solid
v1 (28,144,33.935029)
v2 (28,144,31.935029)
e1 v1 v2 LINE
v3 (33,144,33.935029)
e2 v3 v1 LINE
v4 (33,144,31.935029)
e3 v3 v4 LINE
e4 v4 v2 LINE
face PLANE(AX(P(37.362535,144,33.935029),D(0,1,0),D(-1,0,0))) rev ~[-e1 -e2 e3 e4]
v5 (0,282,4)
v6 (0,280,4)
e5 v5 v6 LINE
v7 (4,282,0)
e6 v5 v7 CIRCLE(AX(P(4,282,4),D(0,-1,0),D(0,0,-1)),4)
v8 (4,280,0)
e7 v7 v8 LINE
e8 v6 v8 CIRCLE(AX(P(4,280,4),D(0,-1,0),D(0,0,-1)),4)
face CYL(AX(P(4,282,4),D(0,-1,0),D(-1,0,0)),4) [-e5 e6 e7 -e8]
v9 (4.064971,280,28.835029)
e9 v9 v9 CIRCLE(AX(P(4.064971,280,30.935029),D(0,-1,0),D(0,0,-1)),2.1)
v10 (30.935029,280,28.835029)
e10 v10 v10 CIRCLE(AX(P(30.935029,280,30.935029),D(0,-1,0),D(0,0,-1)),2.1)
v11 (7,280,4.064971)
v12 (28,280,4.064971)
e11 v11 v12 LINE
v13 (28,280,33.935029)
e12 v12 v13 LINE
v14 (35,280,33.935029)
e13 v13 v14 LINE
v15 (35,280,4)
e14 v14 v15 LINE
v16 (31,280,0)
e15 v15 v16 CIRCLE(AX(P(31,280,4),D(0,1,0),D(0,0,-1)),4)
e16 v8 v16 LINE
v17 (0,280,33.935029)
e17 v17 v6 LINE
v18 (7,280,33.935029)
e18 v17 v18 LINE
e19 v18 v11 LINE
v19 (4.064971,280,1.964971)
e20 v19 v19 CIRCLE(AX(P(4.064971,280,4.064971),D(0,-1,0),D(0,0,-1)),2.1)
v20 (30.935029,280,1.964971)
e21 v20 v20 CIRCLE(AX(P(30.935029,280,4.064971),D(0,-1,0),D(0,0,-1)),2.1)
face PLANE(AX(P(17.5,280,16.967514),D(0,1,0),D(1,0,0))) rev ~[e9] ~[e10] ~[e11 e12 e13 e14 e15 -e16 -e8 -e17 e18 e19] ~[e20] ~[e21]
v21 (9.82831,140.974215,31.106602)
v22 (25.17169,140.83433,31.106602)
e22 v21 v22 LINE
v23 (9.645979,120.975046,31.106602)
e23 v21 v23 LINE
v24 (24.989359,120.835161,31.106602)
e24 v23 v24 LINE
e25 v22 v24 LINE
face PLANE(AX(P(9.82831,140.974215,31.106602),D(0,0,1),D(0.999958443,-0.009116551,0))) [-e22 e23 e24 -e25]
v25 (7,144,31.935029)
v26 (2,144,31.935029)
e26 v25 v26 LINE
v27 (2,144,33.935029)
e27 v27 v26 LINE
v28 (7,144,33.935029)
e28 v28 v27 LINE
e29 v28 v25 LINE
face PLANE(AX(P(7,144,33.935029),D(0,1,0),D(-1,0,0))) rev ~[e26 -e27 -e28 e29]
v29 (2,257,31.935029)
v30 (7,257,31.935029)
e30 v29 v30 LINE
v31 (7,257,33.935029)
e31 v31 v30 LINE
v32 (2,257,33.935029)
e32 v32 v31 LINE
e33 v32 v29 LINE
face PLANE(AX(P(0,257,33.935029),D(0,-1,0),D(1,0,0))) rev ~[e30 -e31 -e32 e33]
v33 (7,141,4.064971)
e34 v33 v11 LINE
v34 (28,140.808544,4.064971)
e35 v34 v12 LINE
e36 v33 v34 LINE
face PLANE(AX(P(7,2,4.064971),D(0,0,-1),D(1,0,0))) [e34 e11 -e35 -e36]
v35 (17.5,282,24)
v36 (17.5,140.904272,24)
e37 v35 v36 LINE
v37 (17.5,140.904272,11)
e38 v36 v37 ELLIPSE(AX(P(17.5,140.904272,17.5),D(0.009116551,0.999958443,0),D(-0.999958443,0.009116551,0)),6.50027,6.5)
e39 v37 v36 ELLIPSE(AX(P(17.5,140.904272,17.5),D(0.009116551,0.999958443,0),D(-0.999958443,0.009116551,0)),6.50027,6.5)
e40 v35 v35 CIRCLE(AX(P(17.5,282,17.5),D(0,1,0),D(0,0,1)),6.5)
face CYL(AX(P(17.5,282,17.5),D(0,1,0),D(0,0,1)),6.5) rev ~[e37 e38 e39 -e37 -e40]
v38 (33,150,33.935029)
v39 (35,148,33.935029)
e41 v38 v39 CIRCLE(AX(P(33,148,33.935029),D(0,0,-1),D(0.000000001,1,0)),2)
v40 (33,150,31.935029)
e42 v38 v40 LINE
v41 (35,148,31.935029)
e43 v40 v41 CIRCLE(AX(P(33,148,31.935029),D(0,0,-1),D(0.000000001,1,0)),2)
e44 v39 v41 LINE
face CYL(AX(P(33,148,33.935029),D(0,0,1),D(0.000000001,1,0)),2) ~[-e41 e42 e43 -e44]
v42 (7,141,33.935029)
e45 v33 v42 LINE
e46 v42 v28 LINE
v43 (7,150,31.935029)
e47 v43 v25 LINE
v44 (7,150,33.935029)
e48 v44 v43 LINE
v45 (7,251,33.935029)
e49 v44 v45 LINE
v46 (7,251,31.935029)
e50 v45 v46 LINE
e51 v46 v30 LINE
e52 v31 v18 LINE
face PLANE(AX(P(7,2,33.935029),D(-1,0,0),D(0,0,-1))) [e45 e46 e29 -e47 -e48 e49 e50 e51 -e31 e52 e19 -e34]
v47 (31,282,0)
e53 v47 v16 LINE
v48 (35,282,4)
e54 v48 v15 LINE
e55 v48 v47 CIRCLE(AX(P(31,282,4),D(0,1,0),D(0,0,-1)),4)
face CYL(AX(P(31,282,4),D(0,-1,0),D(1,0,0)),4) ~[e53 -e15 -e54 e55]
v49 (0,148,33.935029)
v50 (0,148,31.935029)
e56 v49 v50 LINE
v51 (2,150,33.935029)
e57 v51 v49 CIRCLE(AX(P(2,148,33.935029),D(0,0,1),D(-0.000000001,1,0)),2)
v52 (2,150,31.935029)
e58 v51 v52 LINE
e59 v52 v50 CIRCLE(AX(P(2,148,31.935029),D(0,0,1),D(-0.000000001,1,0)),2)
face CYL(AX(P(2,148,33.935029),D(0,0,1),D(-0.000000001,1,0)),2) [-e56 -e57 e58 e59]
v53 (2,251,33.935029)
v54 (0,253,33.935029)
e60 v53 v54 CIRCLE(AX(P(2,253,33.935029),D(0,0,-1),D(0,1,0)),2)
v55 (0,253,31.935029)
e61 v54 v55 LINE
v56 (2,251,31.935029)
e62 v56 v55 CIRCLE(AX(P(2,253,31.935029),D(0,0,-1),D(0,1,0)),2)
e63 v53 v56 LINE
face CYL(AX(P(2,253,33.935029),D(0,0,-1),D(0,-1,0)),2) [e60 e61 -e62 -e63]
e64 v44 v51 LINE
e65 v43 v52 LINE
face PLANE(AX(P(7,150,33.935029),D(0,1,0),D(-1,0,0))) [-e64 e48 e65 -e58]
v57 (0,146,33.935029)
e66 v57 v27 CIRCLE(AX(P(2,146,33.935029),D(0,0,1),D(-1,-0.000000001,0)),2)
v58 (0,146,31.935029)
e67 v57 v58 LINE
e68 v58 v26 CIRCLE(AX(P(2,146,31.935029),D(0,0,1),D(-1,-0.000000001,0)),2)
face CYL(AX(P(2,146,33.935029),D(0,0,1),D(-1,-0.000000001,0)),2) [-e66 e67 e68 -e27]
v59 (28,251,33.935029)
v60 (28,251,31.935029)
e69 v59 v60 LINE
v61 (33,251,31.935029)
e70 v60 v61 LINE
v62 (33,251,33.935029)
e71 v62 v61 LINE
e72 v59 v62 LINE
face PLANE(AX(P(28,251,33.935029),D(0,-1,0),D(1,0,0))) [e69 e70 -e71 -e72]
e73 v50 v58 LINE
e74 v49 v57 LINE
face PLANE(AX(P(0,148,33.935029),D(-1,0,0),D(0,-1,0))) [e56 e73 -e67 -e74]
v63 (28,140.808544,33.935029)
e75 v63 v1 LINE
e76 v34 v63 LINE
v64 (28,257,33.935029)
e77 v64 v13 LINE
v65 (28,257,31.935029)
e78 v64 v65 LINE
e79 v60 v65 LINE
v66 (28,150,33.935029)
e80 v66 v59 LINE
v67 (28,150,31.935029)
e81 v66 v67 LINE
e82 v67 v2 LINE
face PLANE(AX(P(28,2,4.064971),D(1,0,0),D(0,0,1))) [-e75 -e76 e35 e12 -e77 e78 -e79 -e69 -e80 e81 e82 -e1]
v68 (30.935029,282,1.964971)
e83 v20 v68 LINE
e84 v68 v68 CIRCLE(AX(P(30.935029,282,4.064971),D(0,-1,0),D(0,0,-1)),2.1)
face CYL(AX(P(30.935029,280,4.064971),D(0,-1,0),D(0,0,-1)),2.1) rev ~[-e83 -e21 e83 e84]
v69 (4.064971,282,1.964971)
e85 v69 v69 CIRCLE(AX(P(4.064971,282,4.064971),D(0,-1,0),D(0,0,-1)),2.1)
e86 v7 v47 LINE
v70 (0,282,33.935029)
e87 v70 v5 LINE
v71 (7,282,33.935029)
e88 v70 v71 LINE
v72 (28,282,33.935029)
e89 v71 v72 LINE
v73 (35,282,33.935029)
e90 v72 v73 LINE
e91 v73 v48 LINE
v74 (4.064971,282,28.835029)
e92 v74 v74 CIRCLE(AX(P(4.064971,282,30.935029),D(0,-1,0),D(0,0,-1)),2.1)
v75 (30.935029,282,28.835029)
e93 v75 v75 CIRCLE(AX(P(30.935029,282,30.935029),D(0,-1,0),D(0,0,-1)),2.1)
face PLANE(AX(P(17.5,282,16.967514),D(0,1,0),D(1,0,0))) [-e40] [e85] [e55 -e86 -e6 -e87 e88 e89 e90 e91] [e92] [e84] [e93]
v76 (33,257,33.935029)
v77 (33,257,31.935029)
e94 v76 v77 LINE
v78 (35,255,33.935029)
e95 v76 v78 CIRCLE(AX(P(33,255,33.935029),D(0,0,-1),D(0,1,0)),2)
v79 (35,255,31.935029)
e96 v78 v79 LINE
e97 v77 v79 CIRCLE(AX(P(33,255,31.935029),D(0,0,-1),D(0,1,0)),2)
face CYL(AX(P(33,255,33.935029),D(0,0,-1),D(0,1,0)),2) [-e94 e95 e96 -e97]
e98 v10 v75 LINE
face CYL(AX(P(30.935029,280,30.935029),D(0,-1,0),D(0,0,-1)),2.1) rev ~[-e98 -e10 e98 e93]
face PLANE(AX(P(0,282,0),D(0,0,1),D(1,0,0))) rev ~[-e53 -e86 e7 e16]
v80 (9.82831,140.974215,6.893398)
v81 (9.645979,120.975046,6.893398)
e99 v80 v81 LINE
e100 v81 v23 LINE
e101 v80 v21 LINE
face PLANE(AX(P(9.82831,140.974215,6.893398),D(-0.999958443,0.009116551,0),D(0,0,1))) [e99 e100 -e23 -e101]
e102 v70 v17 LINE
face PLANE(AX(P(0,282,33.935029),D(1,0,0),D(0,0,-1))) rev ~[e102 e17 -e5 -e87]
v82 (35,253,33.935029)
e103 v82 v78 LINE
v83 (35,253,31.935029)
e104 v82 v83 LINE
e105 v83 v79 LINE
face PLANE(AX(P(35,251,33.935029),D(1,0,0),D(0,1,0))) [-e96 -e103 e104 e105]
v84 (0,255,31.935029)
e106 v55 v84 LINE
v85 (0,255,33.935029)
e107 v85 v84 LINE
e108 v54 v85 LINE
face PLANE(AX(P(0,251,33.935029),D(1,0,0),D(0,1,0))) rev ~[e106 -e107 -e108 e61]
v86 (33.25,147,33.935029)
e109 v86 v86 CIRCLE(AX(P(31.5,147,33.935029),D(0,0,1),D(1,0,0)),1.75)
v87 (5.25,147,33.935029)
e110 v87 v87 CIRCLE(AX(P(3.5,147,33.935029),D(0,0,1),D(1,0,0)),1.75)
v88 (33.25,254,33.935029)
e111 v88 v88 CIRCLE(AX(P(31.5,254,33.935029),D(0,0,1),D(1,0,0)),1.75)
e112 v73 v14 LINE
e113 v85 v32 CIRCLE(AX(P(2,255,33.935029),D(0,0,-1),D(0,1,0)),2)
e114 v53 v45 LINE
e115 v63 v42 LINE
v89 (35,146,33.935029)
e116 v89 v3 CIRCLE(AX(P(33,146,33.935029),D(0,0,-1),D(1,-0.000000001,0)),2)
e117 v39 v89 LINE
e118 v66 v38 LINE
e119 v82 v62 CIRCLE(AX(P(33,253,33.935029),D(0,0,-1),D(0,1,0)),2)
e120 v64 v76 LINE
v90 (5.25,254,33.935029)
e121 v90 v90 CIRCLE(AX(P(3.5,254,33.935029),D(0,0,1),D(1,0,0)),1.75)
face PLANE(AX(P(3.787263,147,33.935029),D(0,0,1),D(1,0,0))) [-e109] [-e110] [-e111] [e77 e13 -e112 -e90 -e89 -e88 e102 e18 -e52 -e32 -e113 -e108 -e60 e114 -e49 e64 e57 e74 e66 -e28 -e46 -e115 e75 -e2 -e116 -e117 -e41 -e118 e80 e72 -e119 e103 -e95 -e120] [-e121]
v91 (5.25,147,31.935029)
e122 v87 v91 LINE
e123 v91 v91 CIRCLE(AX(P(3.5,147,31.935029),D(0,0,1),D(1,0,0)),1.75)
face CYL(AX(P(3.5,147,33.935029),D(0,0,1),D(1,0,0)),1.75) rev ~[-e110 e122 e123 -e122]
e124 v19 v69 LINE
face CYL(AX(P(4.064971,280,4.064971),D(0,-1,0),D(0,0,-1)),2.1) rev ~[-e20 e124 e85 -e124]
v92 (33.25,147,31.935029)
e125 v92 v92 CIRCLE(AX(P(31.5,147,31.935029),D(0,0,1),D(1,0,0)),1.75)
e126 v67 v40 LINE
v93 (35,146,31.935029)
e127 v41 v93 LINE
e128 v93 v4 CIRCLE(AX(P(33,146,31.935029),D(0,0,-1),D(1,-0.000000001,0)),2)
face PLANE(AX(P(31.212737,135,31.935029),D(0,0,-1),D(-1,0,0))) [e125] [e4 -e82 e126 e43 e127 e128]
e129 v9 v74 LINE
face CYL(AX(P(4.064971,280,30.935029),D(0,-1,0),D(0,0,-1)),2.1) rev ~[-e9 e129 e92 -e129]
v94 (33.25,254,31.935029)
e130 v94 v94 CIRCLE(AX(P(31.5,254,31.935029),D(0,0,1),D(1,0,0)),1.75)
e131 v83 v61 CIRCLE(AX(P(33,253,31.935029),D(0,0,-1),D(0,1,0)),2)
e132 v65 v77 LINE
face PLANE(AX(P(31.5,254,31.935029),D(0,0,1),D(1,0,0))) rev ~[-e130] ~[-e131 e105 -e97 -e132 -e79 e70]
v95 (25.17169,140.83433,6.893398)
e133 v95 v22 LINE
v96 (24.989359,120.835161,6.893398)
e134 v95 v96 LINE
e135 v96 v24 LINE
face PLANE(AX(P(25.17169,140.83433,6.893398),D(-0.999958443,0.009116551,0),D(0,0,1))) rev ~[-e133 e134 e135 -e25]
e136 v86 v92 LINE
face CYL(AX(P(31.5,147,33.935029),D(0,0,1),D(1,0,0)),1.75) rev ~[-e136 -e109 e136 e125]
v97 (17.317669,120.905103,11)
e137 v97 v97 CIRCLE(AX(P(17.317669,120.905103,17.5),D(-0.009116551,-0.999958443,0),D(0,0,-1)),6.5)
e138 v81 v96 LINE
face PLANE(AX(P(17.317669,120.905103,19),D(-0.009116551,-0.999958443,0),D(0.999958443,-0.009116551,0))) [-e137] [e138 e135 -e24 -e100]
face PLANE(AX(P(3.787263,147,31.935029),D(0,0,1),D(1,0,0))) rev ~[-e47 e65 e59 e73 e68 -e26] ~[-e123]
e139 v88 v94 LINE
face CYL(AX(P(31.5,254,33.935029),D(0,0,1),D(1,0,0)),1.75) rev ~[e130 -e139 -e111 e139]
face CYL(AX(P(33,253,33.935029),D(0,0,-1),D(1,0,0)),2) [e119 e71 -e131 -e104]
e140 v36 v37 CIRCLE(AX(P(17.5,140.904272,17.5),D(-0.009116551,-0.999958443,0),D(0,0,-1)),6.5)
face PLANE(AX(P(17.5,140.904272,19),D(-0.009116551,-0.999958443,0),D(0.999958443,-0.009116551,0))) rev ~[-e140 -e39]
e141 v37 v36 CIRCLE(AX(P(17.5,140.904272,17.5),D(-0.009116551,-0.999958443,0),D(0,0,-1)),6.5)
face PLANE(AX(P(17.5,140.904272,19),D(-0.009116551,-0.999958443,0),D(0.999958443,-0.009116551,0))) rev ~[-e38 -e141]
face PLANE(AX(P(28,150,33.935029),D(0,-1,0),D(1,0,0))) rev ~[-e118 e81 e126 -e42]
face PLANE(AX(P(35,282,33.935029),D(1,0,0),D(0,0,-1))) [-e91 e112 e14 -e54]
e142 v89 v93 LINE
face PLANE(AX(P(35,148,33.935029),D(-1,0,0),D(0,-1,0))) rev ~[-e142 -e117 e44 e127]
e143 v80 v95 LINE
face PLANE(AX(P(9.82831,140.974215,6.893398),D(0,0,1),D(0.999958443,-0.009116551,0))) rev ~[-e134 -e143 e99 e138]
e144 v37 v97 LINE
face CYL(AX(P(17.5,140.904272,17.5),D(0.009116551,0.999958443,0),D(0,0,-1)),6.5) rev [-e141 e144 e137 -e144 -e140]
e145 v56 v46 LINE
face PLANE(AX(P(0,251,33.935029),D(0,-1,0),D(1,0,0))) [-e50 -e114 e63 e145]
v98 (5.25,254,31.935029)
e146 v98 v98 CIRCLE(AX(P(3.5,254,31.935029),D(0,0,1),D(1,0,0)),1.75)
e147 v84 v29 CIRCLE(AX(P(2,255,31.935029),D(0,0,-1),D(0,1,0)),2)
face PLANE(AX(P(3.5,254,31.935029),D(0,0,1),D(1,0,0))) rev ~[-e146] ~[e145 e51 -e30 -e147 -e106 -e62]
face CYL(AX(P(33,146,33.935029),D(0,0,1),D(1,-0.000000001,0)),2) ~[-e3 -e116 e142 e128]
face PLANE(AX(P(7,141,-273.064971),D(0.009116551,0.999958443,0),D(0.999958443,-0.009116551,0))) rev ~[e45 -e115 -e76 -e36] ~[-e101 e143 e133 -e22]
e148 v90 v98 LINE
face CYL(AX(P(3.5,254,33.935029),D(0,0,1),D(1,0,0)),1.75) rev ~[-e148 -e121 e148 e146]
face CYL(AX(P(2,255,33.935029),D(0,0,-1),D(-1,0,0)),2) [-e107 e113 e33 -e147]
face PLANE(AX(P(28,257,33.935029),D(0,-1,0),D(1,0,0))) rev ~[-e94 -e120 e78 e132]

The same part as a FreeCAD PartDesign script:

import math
import FreeCAD as App
import Part
import Sketcher

V = App.Vector
Q = App.Units.Quantity


def edges_at(feature, points):
    """Names of the edges that pass closest to the given points."""
    edges = feature.Shape.Edges
    near = lambda p: min(range(len(edges)), key=lambda i: edges[i].distToShape(Part.Vertex(*p))[0])
    return sorted({f"Edge{near(p) + 1}" for p in points})


def add_polygon(sketch, points):
    """Adds a closed chain of lines whose ends are joined by coincident constraints."""
    first, n = sketch.GeometryCount, len(points)
    for a, b in zip(points, points[1:] + points[:1]):
        sketch.addGeometry(Part.LineSegment(App.Vector(*a, 0), App.Vector(*b, 0)), False)
    for i in range(n):
        sketch.addConstraint(Sketcher.Constraint("Coincident", first + i, 2, first + (i + 1) % n, 1))

doc = App.newDocument("Part")
body = doc.addObject("PartDesign::Body", "Body")

# Sketch on XZ plane
sketch1 = doc.addObject("Sketcher::SketchObject", "Sketch")
body.addObject(sketch1)
sketch1.AttachmentSupport = (doc.XZ_Plane, [""])
sketch1.MapMode = "FlatFace"
add_polygon(sketch1, [(0, 0), (0, 35), (35, 35), (35, 0)])  # lines 0-3
sketch1.addConstraint([
    Sketcher.Constraint("Vertical", 0),
    Sketcher.Constraint("Horizontal", 1),
    Sketcher.Constraint("Vertical", 2),
    Sketcher.Constraint("Horizontal", 3),
    Sketcher.Constraint("Coincident", 3, 2, -1, 1),
    Sketcher.Constraint("Equal", 3, 0),
    Sketcher.Constraint("DistanceX", 1, 1, 1, 2, Q("35 mm")),
])
pad1 = doc.addObject("PartDesign::Pad", "Pad")
body.addObject(pad1)
pad1.Profile = sketch1
pad1.Length = 2
pad1.Reversed = True

# Sketch on XZ plane
sketch2 = doc.addObject("Sketcher::SketchObject", "Sketch001")
body.addObject(sketch2)
sketch2.AttachmentSupport = (doc.XZ_Plane, [""])
sketch2.MapMode = "FlatFace"
sketch2.AttachmentOffset = App.Placement(V(0, 0, -2), App.Rotation())
sketch2.addGeometry(Part.Circle(V(30.9, 4.1, 0), V(0, 0, 1), 1.8), False)  # 0
sketch2.addGeometry(Part.Circle(V(30.9, 30.9, 0), V(0, 0, 1), 1.8), False)  # 1
sketch2.addGeometry(Part.Circle(V(4.1, 4.1, 0), V(0, 0, 1), 1.8), False)  # 2
sketch2.addGeometry(Part.Circle(V(4.1, 30.9, 0), V(0, 0, 1), 1.8), False)  # 3
add_polygon(sketch2, [(0, 33.9), (0, 35), (35, 35), (35, 33.9)])  # lines 4-7
sketch2.addConstraint([
    Sketcher.Constraint("Vertical", 4),
    Sketcher.Constraint("Horizontal", 5),
    Sketcher.Constraint("Vertical", 6),
    Sketcher.Constraint("Horizontal", 7),
    Sketcher.Constraint("Equal", 0, 1),
    Sketcher.Constraint("Equal", 1, 2),
    Sketcher.Constraint("Equal", 2, 3),
    Sketcher.Constraint("PointOnObject", 4, 2, -2),
    Sketcher.Constraint("Horizontal", 0, 3, 2, 3),
    Sketcher.Constraint("Horizontal", 1, 3, 3, 3),
    Sketcher.Constraint("Vertical", 0, 3, 1, 3),
    Sketcher.Constraint("Vertical", 2, 3, 3, 3),
    Sketcher.Constraint("Diameter", 0, Q("3.5 mm")),
    Sketcher.Constraint("DistanceX", 5, 1, 5, 2, Q("35 mm")),
    Sketcher.Constraint("DistanceY", -1, 1, 4, 2, Q("35 mm")),
    Sketcher.Constraint("DistanceY", 1, 3, 6, 2, Q("3 mm")),
    Sketcher.Constraint("DistanceY", 4, 1, 4, 2, Q("1.064971 mm")),
    Sketcher.Constraint("DistanceX", -1, 1, 0, 3, Q("30.935029 mm")),
    Sketcher.Constraint("DistanceY", -1, 1, 0, 3, Q("4.064971 mm")),
    Sketcher.Constraint("DistanceX", -1, 1, 2, 3, Q("4.064971 mm")),
])
pocket1 = doc.addObject("PartDesign::Pocket", "Pocket")
body.addObject(pocket1)
pocket1.Profile = sketch2
pocket1.Length = 2
pocket1.Reversed = True

# Sketch on XZ plane
sketch3 = doc.addObject("Sketcher::SketchObject", "Sketch002")
body.addObject(sketch3)
sketch3.AttachmentSupport = (doc.XZ_Plane, [""])
sketch3.MapMode = "FlatFace"
sketch3.AttachmentOffset = App.Placement(V(0, 0, -2), App.Rotation())
add_polygon(sketch3, [(7, 34), (28, 34), (28, 4), (7, 4)])  # lines 0-3
sketch3.addConstraint([
    Sketcher.Constraint("Horizontal", 0),
    Sketcher.Constraint("Vertical", 1),
    Sketcher.Constraint("Horizontal", 2),
    Sketcher.Constraint("Vertical", 3),
    Sketcher.Constraint("DistanceX", 0, 1, 0, 2, Q("21 mm")),
    Sketcher.Constraint("DistanceX", -1, 1, 0, 2, Q("28 mm")),
    Sketcher.Constraint("DistanceY", 1, 2, 1, 1, Q("29.870058 mm")),
    Sketcher.Constraint("DistanceY", -1, 1, 0, 2, Q("33.935029 mm")),
])
pad2 = doc.addObject("PartDesign::Pad", "Pad001")
body.addObject(pad2)
pad2.Profile = sketch3
pad2.Length = 280
pad2.Reversed = True

# Sketch on XY plane
sketch4 = doc.addObject("Sketcher::SketchObject", "Sketch003")
body.addObject(sketch4)
sketch4.AttachmentSupport = (doc.XY_Plane, [""])
sketch4.MapMode = "FlatFace"
sketch4.AttachmentOffset = App.Placement(V(0, 0, 33.935029), App.Rotation())
add_polygon(sketch4, [(28, 257), (28, 251), (35, 251), (35, 257)])  # lines 0-3
sketch4.addGeometry(Part.Circle(V(31.5, 254, 0), V(0, 0, 1), 1.8), False)  # 4
add_polygon(sketch4, [(0, 257), (0, 251), (7, 251), (7, 257)])  # lines 5-8
sketch4.addGeometry(Part.Circle(V(3.5, 254, 0), V(0, 0, 1), 1.8), False)  # 9
add_polygon(sketch4, [(28, 31), (28, 25), (35, 25), (35, 31)])  # lines 10-13
sketch4.addGeometry(Part.Circle(V(31.5, 28, 0), V(0, 0, 1), 1.8), False)  # 14
add_polygon(sketch4, [(0, 31), (0, 25), (7, 25), (7, 31)])  # lines 15-18
sketch4.addGeometry(Part.Circle(V(3.5, 28, 0), V(0, 0, 1), 1.8), False)  # 19
sketch4.addConstraint([
    Sketcher.Constraint("Vertical", 0),
    Sketcher.Constraint("Horizontal", 1),
    Sketcher.Constraint("Vertical", 2),
    Sketcher.Constraint("Horizontal", 3),
    Sketcher.Constraint("Vertical", 5),
    Sketcher.Constraint("Horizontal", 6),
    Sketcher.Constraint("Vertical", 7),
    Sketcher.Constraint("Horizontal", 8),
    Sketcher.Constraint("Vertical", 10),
    Sketcher.Constraint("Horizontal", 11),
    Sketcher.Constraint("Vertical", 12),
    Sketcher.Constraint("Horizontal", 13),
    Sketcher.Constraint("Vertical", 15),
    Sketcher.Constraint("Horizontal", 16),
    Sketcher.Constraint("Vertical", 17),
    Sketcher.Constraint("Horizontal", 18),
    Sketcher.Constraint("Equal", 4, 9),
    Sketcher.Constraint("Equal", 9, 14),
    Sketcher.Constraint("Equal", 14, 19),
    Sketcher.Constraint("PointOnObject", 5, 2, -2),
    Sketcher.Constraint("PointOnObject", 15, 2, -2),
    Sketcher.Constraint("Horizontal", 4, 3, 9, 3),
    Sketcher.Constraint("Horizontal", 14, 3, 19, 3),
    Sketcher.Constraint("Horizontal", 1, 2, 5, 2),
    Sketcher.Constraint("Horizontal", 3, 2, 7, 2),
    Sketcher.Constraint("Horizontal", 11, 2, 15, 2),
    Sketcher.Constraint("Horizontal", 13, 2, 17, 2),
    Sketcher.Constraint("Vertical", 4, 3, 14, 3),
    Sketcher.Constraint("Vertical", 9, 3, 19, 3),
    Sketcher.Constraint("Vertical", 3, 2, 10, 2),
    Sketcher.Constraint("Vertical", 2, 2, 11, 2),
    Sketcher.Constraint("Vertical", 7, 2, 16, 2),
    Sketcher.Constraint("Equal", 3, 6),
    Sketcher.Constraint("Equal", 7, 10),
    Sketcher.Constraint("Diameter", 4, Q("3.5 mm")),
    Sketcher.Constraint("DistanceX", 1, 1, 1, 2, Q("7 mm")),
    Sketcher.Constraint("DistanceY", 0, 2, 0, 1, Q("6 mm")),
    Sketcher.Constraint("DistanceY", -1, 1, 4, 3, Q("254 mm")),
    Sketcher.Constraint("DistanceY", -1, 1, 14, 3, Q("28 mm")),
    Sketcher.Constraint("DistanceX", -1, 1, 0, 2, Q("28 mm")),
    Sketcher.Constraint("DistanceY", -1, 1, 0, 2, Q("251 mm")),
    Sketcher.Constraint("DistanceY", -1, 1, 10, 2, Q("25 mm")),
    Sketcher.Constraint("DistanceX", 9, 3, 4, 3, Q("28 mm")),
    Sketcher.Constraint("DistanceX", -1, 1, 4, 3, Q("31.5 mm")),
])
pad3 = doc.addObject("PartDesign::Pad", "Pad002")
body.addObject(pad3)
pad3.Profile = sketch4
pad3.Length = 2
pad3.Reversed = True

# Sketch on XY plane
sketch5 = doc.addObject("Sketcher::SketchObject", "Sketch004")
body.addObject(sketch5)
sketch5.AttachmentSupport = (doc.XY_Plane, [""])
sketch5.MapMode = "FlatFace"
sketch5.AttachmentOffset = App.Placement(V(0, 0, 33.935029), App.Rotation())
add_polygon(sketch5, [(7, 144), (0, 144), (0, 138), (7, 138)])  # lines 0-3
sketch5.addGeometry(Part.Circle(V(3.5, 141, 0), V(0, 0, 1), 1.8), False)  # 4
add_polygon(sketch5, [(35, 144), (28, 144), (28, 138), (35, 138)])  # lines 5-8
sketch5.addGeometry(Part.Circle(V(31.5, 141, 0), V(0, 0, 1), 1.8), False)  # 9
sketch5.addConstraint([
    Sketcher.Constraint("Horizontal", 0),
    Sketcher.Constraint("Vertical", 1),
    Sketcher.Constraint("Horizontal", 2),
    Sketcher.Constraint("Vertical", 3),
    Sketcher.Constraint("Horizontal", 5),
    Sketcher.Constraint("Vertical", 6),
    Sketcher.Constraint("Horizontal", 7),
    Sketcher.Constraint("Vertical", 8),
    Sketcher.Constraint("Equal", 4, 9),
    Sketcher.Constraint("PointOnObject", 0, 2, -2),
    Sketcher.Constraint("Horizontal", 4, 3, 9, 3),
    Sketcher.Constraint("Horizontal", 3, 2, 5, 2),
    Sketcher.Constraint("Horizontal", 2, 2, 6, 2),
    Sketcher.Constraint("Equal", 2, 5),
    Sketcher.Constraint("Diameter", 4, Q("3.5 mm")),
    Sketcher.Constraint("DistanceX", 0, 2, 0, 1, Q("7 mm")),
    Sketcher.Constraint("DistanceY", 1, 2, 1, 1, Q("6 mm")),
    Sketcher.Constraint("DistanceY", -1, 1, 4, 3, Q("141 mm")),
    Sketcher.Constraint("DistanceY", -1, 1, 0, 2, Q("144 mm")),
    Sketcher.Constraint("DistanceX", -1, 1, 5, 2, Q("28 mm")),
    Sketcher.Constraint("DistanceX", 4, 3, 9, 3, Q("28 mm")),
    Sketcher.Constraint("DistanceX", -1, 1, 4, 3, Q("3.5 mm")),
])
pad4 = doc.addObject("PartDesign::Pad", "Pad003")
body.addObject(pad4)
pad4.Profile = sketch5
pad4.Length = 2
pad4.Reversed = True

# Sketch on XZ plane
sketch6 = doc.addObject("Sketcher::SketchObject", "Sketch005")
body.addObject(sketch6)
sketch6.AttachmentSupport = (doc.XZ_Plane, [""])
sketch6.MapMode = "FlatFace"
sketch6.AttachmentOffset = App.Placement(V(0, 0, -282), App.Rotation())
add_polygon(sketch6, [(0, 0), (0, 33.9), (35, 33.9), (35, 0)])  # lines 0-3
sketch6.addGeometry(Part.Circle(V(4.1, 30.9, 0), V(0, 0, 1), 1.8), False)  # 4
sketch6.addGeometry(Part.Circle(V(30.9, 30.9, 0), V(0, 0, 1), 1.8), False)  # 5
sketch6.addGeometry(Part.Circle(V(4.1, 4.1, 0), V(0, 0, 1), 1.8), False)  # 6
sketch6.addGeometry(Part.Circle(V(30.9, 4.1, 0), V(0, 0, 1), 1.8), False)  # 7
sketch6.addConstraint([
    Sketcher.Constraint("Vertical", 0),
    Sketcher.Constraint("Horizontal", 1),
    Sketcher.Constraint("Vertical", 2),
    Sketcher.Constraint("Horizontal", 3),
    Sketcher.Constraint("Coincident", 3, 2, -1, 1),
    Sketcher.Constraint("Equal", 4, 5),
    Sketcher.Constraint("Equal", 5, 6),
    Sketcher.Constraint("Equal", 6, 7),
    Sketcher.Constraint("Horizontal", 4, 3, 5, 3),
    Sketcher.Constraint("Horizontal", 6, 3, 7, 3),
    Sketcher.Constraint("Vertical", 4, 3, 6, 3),
    Sketcher.Constraint("Vertical", 5, 3, 7, 3),
    Sketcher.Constraint("Diameter", 4, Q("3.5 mm")),
    Sketcher.Constraint("DistanceX", 1, 1, 1, 2, Q("35 mm")),
    Sketcher.Constraint("DistanceY", 4, 3, 0, 2, Q("3 mm")),
    Sketcher.Constraint("DistanceY", 0, 1, 0, 2, Q("33.935029 mm")),
    Sketcher.Constraint("DistanceX", -1, 1, 4, 3, Q("4.064971 mm")),
    Sketcher.Constraint("DistanceX", -1, 1, 5, 3, Q("30.935029 mm")),
    Sketcher.Constraint("DistanceY", -1, 1, 6, 3, Q("4.064971 mm")),
])
pad5 = doc.addObject("PartDesign::Pad", "Pad004")
body.addObject(pad5)
pad5.Profile = sketch6
pad5.Length = 2

# Sketch on XZ plane
sketch7 = doc.addObject("Sketcher::SketchObject", "Sketch006")
body.addObject(sketch7)
sketch7.AttachmentSupport = (doc.XZ_Plane, [""])
sketch7.MapMode = "FlatFace"
sketch7.AttachmentOffset = App.Placement(V(0, 0, -282), App.Rotation())
sketch7.addGeometry([
    Part.Circle(V(17.5, 17.5, 0), V(0, 0, 1), 6.5),
    Part.Circle(V(30.9, 4.1, 0), V(0, 0, 1), 1.8),
], False)
sketch7.addConstraint([
    Sketcher.Constraint("Diameter", 0, Q("13 mm")),
    Sketcher.Constraint("Diameter", 1, Q("3.5 mm")),
    Sketcher.Constraint("DistanceX", -1, 1, 0, 3, Q("17.5 mm")),
    Sketcher.Constraint("DistanceY", -1, 1, 0, 3, Q("17.5 mm")),
    Sketcher.Constraint("DistanceX", -1, 1, 1, 3, Q("30.935029 mm")),
    Sketcher.Constraint("DistanceY", -1, 1, 1, 3, Q("4.064971 mm")),
])
pocket2 = doc.addObject("PartDesign::Pocket", "Pocket001")
body.addObject(pocket2)
pocket2.Profile = sketch7
pocket2.Length = 373
pocket2.Reversed = True
doc.recompute()

fillet = doc.addObject("PartDesign::Fillet", "Fillet")
body.addObject(fillet)
fillet.Base = (pocket2, edges_at(pocket2, [
    (0, 31, 32.935),
    (0, 25, 32.935),
    (0, 144, 32.935),
    (0, 138, 32.935),
    (35, 144, 32.935),
    (35, 138, 32.935),
    (35, 257, 32.935),
    (35, 251, 32.935),
    (0, 251, 32.935),
    (0, 257, 32.935),
    (35, 31, 32.935),
    (35, 25, 32.935),
]))
fillet.Radius = 2
doc.recompute()

fillet2 = doc.addObject("PartDesign::Fillet", "Fillet001")
body.addObject(fillet2)
fillet2.Base = (fillet, edges_at(fillet, [
    (35, 281, 0),
    (0, 281, 0),
    (0, 1, 0),
    (35, 1, 0),
]))
fillet2.Radius = 4

# Sketch on XY plane
sketch8 = doc.addObject("Sketcher::SketchObject", "Sketch007")
body.addObject(sketch8)
sketch8.AttachmentSupport = (doc.XY_Plane, [""])
sketch8.MapMode = "FlatFace"
sketch8.AttachmentOffset = App.Placement(V(0, 0, 33.935029), App.Rotation())
sketch8.addGeometry([
    Part.LineSegment(V(0, 148, 0), V(0, 146, 0)),  # 0
    Part.ArcOfCircle(Part.Circle(V(2, 146, 0), V(0, 0, 1), 2), math.radians(-180), math.radians(-90)),  # 1
    Part.LineSegment(V(2, 144, 0), V(7, 144, 0)),  # 2
    Part.LineSegment(V(7, 144, 0), V(7, 150, 0)),  # 3
    Part.LineSegment(V(7, 150, 0), V(2, 150, 0)),  # 4
    Part.ArcOfCircle(Part.Circle(V(2, 148, 0), V(0, 0, 1), 2), math.radians(90), math.radians(180)),  # 5
    Part.Circle(V(3.5, 147, 0), V(0, 0, 1), 1.8),  # 6
    Part.LineSegment(V(0, 136, 0), V(0, 134, 0)),  # 7
    Part.ArcOfCircle(Part.Circle(V(2, 134, 0), V(0, 0, 1), 2), math.radians(-180), math.radians(-90)),  # 8
    Part.LineSegment(V(2, 132, 0), V(7, 132, 0)),  # 9
    Part.LineSegment(V(7, 132, 0), V(7, 138, 0)),  # 10
    Part.LineSegment(V(7, 138, 0), V(2, 138, 0)),  # 11
    Part.ArcOfCircle(Part.Circle(V(2, 136, 0), V(0, 0, 1), 2), math.radians(90), math.radians(180)),  # 12
    Part.Circle(V(3.5, 135, 0), V(0, 0, 1), 1.8),  # 13
    Part.ArcOfCircle(Part.Circle(V(33, 134, 0), V(0, 0, 1), 2), math.radians(-90), math.radians(0)),  # 14
    Part.LineSegment(V(35, 134, 0), V(35, 136, 0)),  # 15
    Part.ArcOfCircle(Part.Circle(V(33, 136, 0), V(0, 0, 1), 2), math.radians(0), math.radians(90)),  # 16
    Part.LineSegment(V(33, 138, 0), V(28, 138, 0)),  # 17
    Part.LineSegment(V(28, 138, 0), V(28, 132, 0)),  # 18
    Part.LineSegment(V(28, 132, 0), V(33, 132, 0)),  # 19
    Part.Circle(V(31.5, 135, 0), V(0, 0, 1), 1.8),  # 20
    Part.ArcOfCircle(Part.Circle(V(33, 146, 0), V(0, 0, 1), 2), math.radians(-90), math.radians(0)),  # 21
    Part.LineSegment(V(35, 146, 0), V(35, 148, 0)),  # 22
    Part.ArcOfCircle(Part.Circle(V(33, 148, 0), V(0, 0, 1), 2), math.radians(0), math.radians(90)),  # 23
    Part.LineSegment(V(33, 150, 0), V(28, 150, 0)),  # 24
    Part.LineSegment(V(28, 150, 0), V(28, 144, 0)),  # 25
    Part.LineSegment(V(28, 144, 0), V(33, 144, 0)),  # 26
    Part.Circle(V(31.5, 147, 0), V(0, 0, 1), 1.8),  # 27
], False)
sketch8.addConstraint([
    Sketcher.Constraint("Tangent", 0, 2, 1, 1),
    Sketcher.Constraint("Tangent", 1, 2, 2, 1),
    Sketcher.Constraint("Coincident", 2, 2, 3, 1),
    Sketcher.Constraint("Coincident", 3, 2, 4, 1),
    Sketcher.Constraint("Tangent", 4, 2, 5, 1),
    Sketcher.Constraint("Tangent", 5, 2, 0, 1),
    Sketcher.Constraint("Tangent", 7, 2, 8, 1),
    Sketcher.Constraint("Tangent", 8, 2, 9, 1),
    Sketcher.Constraint("Coincident", 9, 2, 10, 1),
    Sketcher.Constraint("Coincident", 10, 2, 11, 1),
    Sketcher.Constraint("Tangent", 11, 2, 12, 1),
    Sketcher.Constraint("Tangent", 12, 2, 7, 1),
    Sketcher.Constraint("Tangent", 14, 2, 15, 1),
    Sketcher.Constraint("Tangent", 15, 2, 16, 1),
    Sketcher.Constraint("Tangent", 16, 2, 17, 1),
    Sketcher.Constraint("Coincident", 17, 2, 18, 1),
    Sketcher.Constraint("Coincident", 18, 2, 19, 1),
    Sketcher.Constraint("Tangent", 19, 2, 14, 1),
    Sketcher.Constraint("Tangent", 21, 2, 22, 1),
    Sketcher.Constraint("Tangent", 22, 2, 23, 1),
    Sketcher.Constraint("Tangent", 23, 2, 24, 1),
    Sketcher.Constraint("Coincident", 24, 2, 25, 1),
    Sketcher.Constraint("Coincident", 25, 2, 26, 1),
    Sketcher.Constraint("Tangent", 26, 2, 21, 1),
    Sketcher.Constraint("Vertical", 0),
    Sketcher.Constraint("Horizontal", 2),
    Sketcher.Constraint("Vertical", 3),
    Sketcher.Constraint("Horizontal", 4),
    Sketcher.Constraint("Vertical", 7),
    Sketcher.Constraint("Horizontal", 9),
    Sketcher.Constraint("Vertical", 10),
    Sketcher.Constraint("Horizontal", 11),
    Sketcher.Constraint("Vertical", 15),
    Sketcher.Constraint("Horizontal", 17),
    Sketcher.Constraint("Vertical", 18),
    Sketcher.Constraint("Horizontal", 19),
    Sketcher.Constraint("Vertical", 22),
    Sketcher.Constraint("Horizontal", 24),
    Sketcher.Constraint("Vertical", 25),
    Sketcher.Constraint("Horizontal", 26),
    Sketcher.Constraint("Equal", 1, 5),
    Sketcher.Constraint("Equal", 5, 8),
    Sketcher.Constraint("Equal", 8, 12),
    Sketcher.Constraint("Equal", 6, 13),
    Sketcher.Constraint("Equal", 12, 14),
    Sketcher.Constraint("Equal", 14, 16),
    Sketcher.Constraint("Equal", 13, 20),
    Sketcher.Constraint("Equal", 16, 21),
    Sketcher.Constraint("Equal", 21, 23),
    Sketcher.Constraint("Equal", 20, 27),
    Sketcher.Constraint("PointOnObject", 0, 2, -2),
    Sketcher.Constraint("PointOnObject", 7, 2, -2),
    Sketcher.Constraint("Horizontal", 8, 3, 14, 3),
    Sketcher.Constraint("Horizontal", 12, 3, 16, 3),
    Sketcher.Constraint("Horizontal", 13, 3, 20, 3),
    Sketcher.Constraint("Horizontal", 1, 3, 21, 3),
    Sketcher.Constraint("Horizontal", 5, 3, 23, 3),
    Sketcher.Constraint("Horizontal", 6, 3, 27, 3),
    Sketcher.Constraint("Vertical", 6, 3, 13, 3),
    Sketcher.Constraint("Vertical", 16, 3, 21, 3),
    Sketcher.Constraint("Vertical", 20, 3, 27, 3),
    Sketcher.Constraint("Vertical", 3, 2, 9, 2),
    Sketcher.Constraint("Vertical", 18, 2, 24, 2),
    Sketcher.Constraint("Equal", 11, 17),
    Sketcher.Constraint("Equal", 0, 7),
    Sketcher.Constraint("Radius", 1, Q("2 mm")),
    Sketcher.Constraint("Diameter", 6, Q("3.5 mm")),
    Sketcher.Constraint("DistanceX", 2, 1, 2, 2, Q("5 mm")),
    Sketcher.Constraint("DistanceY", 0, 2, 0, 1, Q("2 mm")),
    Sketcher.Constraint("DistanceY", -1, 1, 1, 3, Q("146 mm")),
    Sketcher.Constraint("DistanceY", -1, 1, 6, 3, Q("147 mm")),
    Sketcher.Constraint("DistanceY", -1, 1, 8, 3, Q("134 mm")),
    Sketcher.Constraint("DistanceY", -1, 1, 13, 3, Q("135 mm")),
    Sketcher.Constraint("DistanceX", -1, 1, 14, 3, Q("33 mm")),
    Sketcher.Constraint("DistanceX", 13, 3, 20, 3, Q("28 mm")),
    Sketcher.Constraint("DistanceX", -1, 1, 6, 3, Q("3.5 mm")),
])
pad6 = doc.addObject("PartDesign::Pad", "Pad005")
body.addObject(pad6)
pad6.Profile = sketch8
pad6.Length = 2
pad6.Reversed = True

# Sketch on XY plane
sketch9 = doc.addObject("Sketcher::SketchObject", "Sketch008")
body.addObject(sketch9)
sketch9.AttachmentSupport = (doc.XY_Plane, [""])
sketch9.MapMode = "FlatFace"
sketch9.AttachmentOffset = App.Placement(V(0, 0, 33.935029), App.Rotation())
add_polygon(sketch9, [(7, 138), (7, 144), (-2, 144), (-2, 138)])  # lines 0-3
add_polygon(sketch9, [(28, 138), (37, 138), (37, 144), (28, 144)])  # lines 4-7
sketch9.addConstraint([
    Sketcher.Constraint("Vertical", 0),
    Sketcher.Constraint("Horizontal", 1),
    Sketcher.Constraint("Vertical", 2),
    Sketcher.Constraint("Horizontal", 3),
    Sketcher.Constraint("Horizontal", 4),
    Sketcher.Constraint("Vertical", 5),
    Sketcher.Constraint("Horizontal", 6),
    Sketcher.Constraint("Vertical", 7),
    Sketcher.Constraint("Horizontal", 3, 2, 4, 2),
    Sketcher.Constraint("Horizontal", 1, 2, 5, 2),
    Sketcher.Constraint("Equal", 3, 4),
    Sketcher.Constraint("DistanceY", 0, 1, 0, 2, Q("6 mm")),
    Sketcher.Constraint("DistanceX", -1, 1, 0, 2, Q("7 mm")),
    Sketcher.Constraint("DistanceY", -1, 1, 0, 2, Q("144 mm")),
    Sketcher.Constraint("DistanceX", -1, 1, 6, 2, Q("28 mm")),
    Sketcher.Constraint("DistanceX", 1, 2, 1, 1, Q("9.362535 mm")),
])
pocket3 = doc.addObject("PartDesign::Pocket", "Pocket002")
body.addObject(pocket3)
pocket3.Profile = sketch9
pocket3.Length = 2

# Sketch on XY plane
sketch10 = doc.addObject("Sketcher::SketchObject", "Sketch009")
body.addObject(sketch10)
sketch10.AttachmentSupport = (doc.XY_Plane, [""])
sketch10.MapMode = "FlatFace"
sketch10.AttachmentOffset = App.Placement(V(0, 0, 33.935029), App.Rotation())
add_polygon(sketch10, [(140, 140), (7, 141), (-166, 141), (-166, -30), (140, -30)])  # lines 0-4
sketch10.addConstraint([
    Sketcher.Constraint("Horizontal", 1),
    Sketcher.Constraint("Vertical", 2),
    Sketcher.Constraint("Horizontal", 3),
    Sketcher.Constraint("Vertical", 4),
    Sketcher.Constraint("DistanceX", -1, 1, 0, 2, Q("7 mm")),
    Sketcher.Constraint("DistanceY", -1, 1, 0, 2, Q("141 mm")),
    Sketcher.Constraint("DistanceX", 3, 1, 3, 2, Q("306.270881 mm")),
    Sketcher.Constraint("DistanceY", 2, 2, 2, 1, Q("171.380281 mm")),
    Sketcher.Constraint("DistanceY", 4, 1, 4, 2, Q("170.166631 mm")),
    Sketcher.Constraint("Distance", 0, Q("133.126042 mm")),
])
pocket4 = doc.addObject("PartDesign::Pocket", "Pocket003")
body.addObject(pocket4)
pocket4.Profile = sketch10
pocket4.Type = "ThroughAll"
pocket4.Midplane = True

# Sketch on an angled plane
sketch11 = doc.addObject("Sketcher::SketchObject", "Sketch010")
body.addObject(sketch11)
sketch11.Placement = App.Placement(V(1.285962, 141.052094, 0), App.Rotation(V(0.999958443, -0.009116551, 0), V(0, 0, 0.999999999), V(-0.009116551, -0.999958443, 0), "ZXY"))
add_polygon(sketch11, [(9, 31), (9, 7), (24, 7), (24, 31)])  # lines 0-3
sketch11.addGeometry(Part.Circle(V(16, 17, 0), V(0, 0, 1), 6), False)  # 4
sketch11.addConstraint([
    Sketcher.Constraint("Vertical", 0),
    Sketcher.Constraint("Horizontal", 1),
    Sketcher.Constraint("Vertical", 2),
    Sketcher.Constraint("Horizontal", 3),
    Sketcher.Constraint("Diameter", 4, Q("13 mm")),
    Sketcher.Constraint("DistanceY", -1, 1, 4, 3, Q("17.5 mm")),
    Sketcher.Constraint("DistanceX", 1, 1, 1, 2, Q("15.344018 mm")),
    Sketcher.Constraint("DistanceY", -1, 1, 0, 2, Q("6.893398 mm")),
    Sketcher.Constraint("DistanceY", -1, 1, 2, 2, Q("31.106602 mm")),
    Sketcher.Constraint("DistanceX", -1, 1, 4, 3, Q("16.214712 mm")),
    Sketcher.Constraint("DistanceX", -1, 1, 1, 2, Q("23.886721 mm")),
])
pad7 = doc.addObject("PartDesign::Pad", "Pad006")
body.addObject(pad7)
pad7.Profile = sketch11
pad7.Length = 20

# Sketch on XZ plane
sketch12 = doc.addObject("Sketcher::SketchObject", "Sketch011")
body.addObject(sketch12)
sketch12.AttachmentSupport = (doc.XZ_Plane, [""])
sketch12.MapMode = "FlatFace"
sketch12.AttachmentOffset = App.Placement(V(0, 0, -280), App.Rotation())
sketch12.addGeometry([
    Part.Circle(V(4.1, 4.1, 0), V(0, 0, 1), 2.1),
    Part.Circle(V(30.9, 4.1, 0), V(0, 0, 1), 2.1),
    Part.Circle(V(30.9, 30.9, 0), V(0, 0, 1), 2.1),
    Part.Circle(V(4.1, 30.9, 0), V(0, 0, 1), 2.1),
], False)
sketch12.addConstraint([
    Sketcher.Constraint("Equal", 0, 1),
    Sketcher.Constraint("Equal", 1, 2),
    Sketcher.Constraint("Equal", 2, 3),
    Sketcher.Constraint("Horizontal", 0, 3, 1, 3),
    Sketcher.Constraint("Horizontal", 2, 3, 3, 3),
    Sketcher.Constraint("Vertical", 1, 3, 2, 3),
    Sketcher.Constraint("Vertical", 0, 3, 3, 3),
    Sketcher.Constraint("Diameter", 0, Q("4.2 mm")),
    Sketcher.Constraint("DistanceX", -1, 1, 0, 3, Q("4.064971 mm")),
    Sketcher.Constraint("DistanceY", -1, 1, 0, 3, Q("4.064971 mm")),
    Sketcher.Constraint("DistanceX", -1, 1, 1, 3, Q("30.935029 mm")),
    Sketcher.Constraint("DistanceY", -1, 1, 2, 3, Q("30.935029 mm")),
])
pocket5 = doc.addObject("PartDesign::Pocket", "Pocket004")
body.addObject(pocket5)
pocket5.Profile = sketch12
pocket5.Length = 10

doc.recompute()
